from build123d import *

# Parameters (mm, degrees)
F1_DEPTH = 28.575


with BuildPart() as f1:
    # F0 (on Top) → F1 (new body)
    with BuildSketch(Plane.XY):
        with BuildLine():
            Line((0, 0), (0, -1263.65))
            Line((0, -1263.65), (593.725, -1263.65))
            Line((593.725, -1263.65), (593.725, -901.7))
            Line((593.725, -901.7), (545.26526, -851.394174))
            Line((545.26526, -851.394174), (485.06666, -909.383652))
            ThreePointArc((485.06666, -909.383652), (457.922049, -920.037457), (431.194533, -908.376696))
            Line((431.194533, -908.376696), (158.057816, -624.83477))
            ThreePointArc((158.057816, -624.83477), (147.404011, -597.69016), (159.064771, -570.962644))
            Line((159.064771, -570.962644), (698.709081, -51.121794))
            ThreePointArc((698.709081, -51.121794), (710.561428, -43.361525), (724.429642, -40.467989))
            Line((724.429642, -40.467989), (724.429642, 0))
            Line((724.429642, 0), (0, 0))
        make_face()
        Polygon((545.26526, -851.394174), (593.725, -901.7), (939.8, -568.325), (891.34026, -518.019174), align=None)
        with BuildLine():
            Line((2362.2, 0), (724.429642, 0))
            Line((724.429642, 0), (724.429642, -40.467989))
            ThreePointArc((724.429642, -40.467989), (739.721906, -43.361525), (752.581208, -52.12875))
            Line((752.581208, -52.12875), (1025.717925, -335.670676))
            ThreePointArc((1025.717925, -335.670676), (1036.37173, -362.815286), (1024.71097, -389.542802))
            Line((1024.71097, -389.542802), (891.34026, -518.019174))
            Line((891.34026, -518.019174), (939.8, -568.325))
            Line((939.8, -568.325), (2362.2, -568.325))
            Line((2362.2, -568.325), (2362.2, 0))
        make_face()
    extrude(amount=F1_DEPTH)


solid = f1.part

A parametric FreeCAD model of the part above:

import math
import FreeCAD as App
import Part
import Sketcher
Q = App.Units.Quantity

doc = App.newDocument("Part")
body = doc.addObject("PartDesign::Body", "Body")

# Sketch on XY plane
sketch1 = body.newObject("Sketcher::SketchObject", "Sketch")
sketch1.AttachmentSupport = (doc.getObject("XY_Plane"), [""])
sketch1.MapMode = "FlatFace"
sketch1.addGeometry(Part.LineSegment(App.Vector(0, 0, 0), App.Vector(0, -1263.65, 0)), False)
sketch1.addGeometry(Part.LineSegment(App.Vector(0, -1263.65, 0), App.Vector(593.725, -1263.65, 0)), False)
sketch1.addGeometry(Part.LineSegment(App.Vector(593.725, -1263.65, 0), App.Vector(593.725, -901.7, 0)), False)
sketch1.addGeometry(Part.LineSegment(App.Vector(593.725, -901.7, 0), App.Vector(939.8, -568.325, 0)), False)
sketch1.addGeometry(Part.LineSegment(App.Vector(939.8, -568.325, 0), App.Vector(2362.2, -568.325, 0)), False)
sketch1.addGeometry(Part.LineSegment(App.Vector(2362.2, -568.325, 0), App.Vector(2362.2, 0, 0)), False)
sketch1.addGeometry(Part.LineSegment(App.Vector(2362.2, 0, 0), App.Vector(0, 0, 0)), False)
sketch1.addGeometry(Part.LineSegment(App.Vector(891.34026, -518.019174, 0), App.Vector(545.26526, -851.394174, 0)), False)
sketch1.addGeometry(Part.LineSegment(App.Vector(545.26526, -851.394174, 0), App.Vector(485.06666, -909.383652, 0)), False)
sketch1.addGeometry(Part.ArcOfCircle(Part.Circle(App.Vector(458.634074, -881.944111, 0), App.Vector(0, 0, 1), 38.1), math.radians(-136.070825), math.radians(-46.070824)), False)
sketch1.addGeometry(Part.LineSegment(App.Vector(431.194533, -908.376696, 0), App.Vector(158.057816, -624.83477, 0)), False)
sketch1.addGeometry(Part.ArcOfCircle(Part.Circle(App.Vector(185.497357, -598.402185, 0), App.Vector(0, 0, 1), 38.1), math.radians(133.929177), math.radians(223.929176)), False)
sketch1.addGeometry(Part.LineSegment(App.Vector(159.064771, -570.962644, 0), App.Vector(698.709081, -51.121794, 0)), False)
sketch1.addGeometry(Part.ArcOfCircle(Part.Circle(App.Vector(725.141667, -78.561337, 0), App.Vector(0, 0, 1), 38.100001), math.radians(91.070824), math.radians(133.929175)), False)
sketch1.addGeometry(Part.ArcOfCircle(Part.Circle(App.Vector(725.141668, -78.561332, 0), App.Vector(0, 0, 1), 38.099997), math.radians(43.929173), math.radians(91.070825)), False)
sketch1.addGeometry(Part.LineSegment(App.Vector(752.581208, -52.12875, 0), App.Vector(1025.717925, -335.670676, 0)), False)
sketch1.addGeometry(Part.ArcOfCircle(Part.Circle(App.Vector(998.278384, -362.103261, 0), App.Vector(0, 0, 1), 38.1), math.radians(-46.070823), math.radians(43.929176)), False)
sketch1.addGeometry(Part.LineSegment(App.Vector(1024.71097, -389.542802, 0), App.Vector(891.34026, -518.019174, 0)), False)
sketch1.addConstraint(Sketcher.Constraint("Coincident", 0, 2, 1, 1))
sketch1.addConstraint(Sketcher.Constraint("Coincident", 1, 2, 2, 1))
sketch1.addConstraint(Sketcher.Constraint("Coincident", 2, 2, 3, 1))
sketch1.addConstraint(Sketcher.Constraint("Coincident", 3, 2, 4, 1))
sketch1.addConstraint(Sketcher.Constraint("Coincident", 4, 2, 5, 1))
sketch1.addConstraint(Sketcher.Constraint("Coincident", 5, 2, 6, 1))
sketch1.addConstraint(Sketcher.Constraint("Coincident", 6, 2, 0, 1))
sketch1.addConstraint(Sketcher.Constraint("Coincident", 7, 2, 8, 1))
sketch1.addConstraint(Sketcher.Constraint("Tangent", 8, 2, 9, 2))
sketch1.addConstraint(Sketcher.Constraint("Tangent", 9, 1, 10, 1))
sketch1.addConstraint(Sketcher.Constraint("Tangent", 10, 2, 11, 2))
sketch1.addConstraint(Sketcher.Constraint("Tangent", 11, 1, 12, 1))
sketch1.addConstraint(Sketcher.Constraint("Tangent", 12, 2, 13, 2))
sketch1.addConstraint(Sketcher.Constraint("Tangent", 13, 1, 14, 2))
sketch1.addConstraint(Sketcher.Constraint("Tangent", 14, 1, 15, 1))
sketch1.addConstraint(Sketcher.Constraint("Tangent", 15, 2, 16, 2))
sketch1.addConstraint(Sketcher.Constraint("Tangent", 16, 1, 17, 1))
sketch1.addConstraint(Sketcher.Constraint("Coincident", 17, 2, 7, 1))
sketch1.addConstraint(Sketcher.Constraint("Vertical", 0))
sketch1.addConstraint(Sketcher.Constraint("Horizontal", 1))
sketch1.addConstraint(Sketcher.Constraint("Vertical", 2))
sketch1.addConstraint(Sketcher.Constraint("Horizontal", 4))
sketch1.addConstraint(Sketcher.Constraint("Vertical", 5))
sketch1.addConstraint(Sketcher.Constraint("Horizontal", 6))
sketch1.addConstraint(Sketcher.Constraint("Coincident", 6, 2, -1, 1))
sketch1.addConstraint(Sketcher.Constraint("Equal", 9, 11))
sketch1.addConstraint(Sketcher.Constraint("Equal", 11, 13))
sketch1.addConstraint(Sketcher.Constraint("Equal", 13, 16))
sketch1.addConstraint(Sketcher.Constraint("Parallel", 3, 7))
sketch1.addConstraint(Sketcher.Constraint("Parallel", 7, 8))
sketch1.addConstraint(Sketcher.Constraint("Perpendicular", 8, 10))
sketch1.addConstraint(Sketcher.Constraint("Perpendicular", 10, 12))
sketch1.addConstraint(Sketcher.Constraint("Perpendicular", 12, 15))
sketch1.addConstraint(Sketcher.Constraint("Perpendicular", 15, 17))
sketch1.addConstraint(Sketcher.Constraint("Equal", 3, 7))
sketch1.addConstraint(Sketcher.Constraint("Equal", 10, 15))
sketch1.addConstraint(Sketcher.Constraint("Radius", 9, Q("1.5 in")))
sketch1.addConstraint(Sketcher.Constraint("DistanceX", 4, 1, 4, 2, Q("56 in")))
sketch1.addConstraint(Sketcher.Constraint("DistanceX", 6, 2, 6, 1, Q("93 in")))
sketch1.addConstraint(Sketcher.Constraint("Distance", 10, Q("15.5 in")))
sketch1.addConstraint(Sketcher.Constraint("Distance", 12, Q("29.5 in")))
sketch1.addConstraint(Sketcher.Constraint("DistanceY", 0, 2, 0, 1, Q("49.75 in")))
sketch1.addConstraint(Sketcher.Constraint("DistanceY", 2, 1, 2, 2, Q("14.25 in")))
sketch1.addConstraint(Sketcher.Constraint("DistanceX", 1, 1, 1, 2, Q("23.375 in")))
sketch1.addConstraint(Sketcher.Constraint("DistanceY", 5, 1, 5, 2, Q("22.375 in")))
sketch1.addConstraint(Sketcher.Constraint("DistanceY", 16, 1, -1, 1, 389.542802))
sketch1.addConstraint(Sketcher.Constraint("DistanceX", 8, 2, 7, 2, 60.1986))
sketch1.addConstraint(Sketcher.Constraint("DistanceX", -1, 1, 7, 2, 545.26526))
sketch1.addConstraint(Sketcher.Constraint("DistanceY", 13, 1, -1, 1, 40.467989))
pad1 = body.newObject("PartDesign::Pad", "Pad")
pad1.Profile = sketch1
pad1.Length = Q("1.125 in")

doc.recompute()
